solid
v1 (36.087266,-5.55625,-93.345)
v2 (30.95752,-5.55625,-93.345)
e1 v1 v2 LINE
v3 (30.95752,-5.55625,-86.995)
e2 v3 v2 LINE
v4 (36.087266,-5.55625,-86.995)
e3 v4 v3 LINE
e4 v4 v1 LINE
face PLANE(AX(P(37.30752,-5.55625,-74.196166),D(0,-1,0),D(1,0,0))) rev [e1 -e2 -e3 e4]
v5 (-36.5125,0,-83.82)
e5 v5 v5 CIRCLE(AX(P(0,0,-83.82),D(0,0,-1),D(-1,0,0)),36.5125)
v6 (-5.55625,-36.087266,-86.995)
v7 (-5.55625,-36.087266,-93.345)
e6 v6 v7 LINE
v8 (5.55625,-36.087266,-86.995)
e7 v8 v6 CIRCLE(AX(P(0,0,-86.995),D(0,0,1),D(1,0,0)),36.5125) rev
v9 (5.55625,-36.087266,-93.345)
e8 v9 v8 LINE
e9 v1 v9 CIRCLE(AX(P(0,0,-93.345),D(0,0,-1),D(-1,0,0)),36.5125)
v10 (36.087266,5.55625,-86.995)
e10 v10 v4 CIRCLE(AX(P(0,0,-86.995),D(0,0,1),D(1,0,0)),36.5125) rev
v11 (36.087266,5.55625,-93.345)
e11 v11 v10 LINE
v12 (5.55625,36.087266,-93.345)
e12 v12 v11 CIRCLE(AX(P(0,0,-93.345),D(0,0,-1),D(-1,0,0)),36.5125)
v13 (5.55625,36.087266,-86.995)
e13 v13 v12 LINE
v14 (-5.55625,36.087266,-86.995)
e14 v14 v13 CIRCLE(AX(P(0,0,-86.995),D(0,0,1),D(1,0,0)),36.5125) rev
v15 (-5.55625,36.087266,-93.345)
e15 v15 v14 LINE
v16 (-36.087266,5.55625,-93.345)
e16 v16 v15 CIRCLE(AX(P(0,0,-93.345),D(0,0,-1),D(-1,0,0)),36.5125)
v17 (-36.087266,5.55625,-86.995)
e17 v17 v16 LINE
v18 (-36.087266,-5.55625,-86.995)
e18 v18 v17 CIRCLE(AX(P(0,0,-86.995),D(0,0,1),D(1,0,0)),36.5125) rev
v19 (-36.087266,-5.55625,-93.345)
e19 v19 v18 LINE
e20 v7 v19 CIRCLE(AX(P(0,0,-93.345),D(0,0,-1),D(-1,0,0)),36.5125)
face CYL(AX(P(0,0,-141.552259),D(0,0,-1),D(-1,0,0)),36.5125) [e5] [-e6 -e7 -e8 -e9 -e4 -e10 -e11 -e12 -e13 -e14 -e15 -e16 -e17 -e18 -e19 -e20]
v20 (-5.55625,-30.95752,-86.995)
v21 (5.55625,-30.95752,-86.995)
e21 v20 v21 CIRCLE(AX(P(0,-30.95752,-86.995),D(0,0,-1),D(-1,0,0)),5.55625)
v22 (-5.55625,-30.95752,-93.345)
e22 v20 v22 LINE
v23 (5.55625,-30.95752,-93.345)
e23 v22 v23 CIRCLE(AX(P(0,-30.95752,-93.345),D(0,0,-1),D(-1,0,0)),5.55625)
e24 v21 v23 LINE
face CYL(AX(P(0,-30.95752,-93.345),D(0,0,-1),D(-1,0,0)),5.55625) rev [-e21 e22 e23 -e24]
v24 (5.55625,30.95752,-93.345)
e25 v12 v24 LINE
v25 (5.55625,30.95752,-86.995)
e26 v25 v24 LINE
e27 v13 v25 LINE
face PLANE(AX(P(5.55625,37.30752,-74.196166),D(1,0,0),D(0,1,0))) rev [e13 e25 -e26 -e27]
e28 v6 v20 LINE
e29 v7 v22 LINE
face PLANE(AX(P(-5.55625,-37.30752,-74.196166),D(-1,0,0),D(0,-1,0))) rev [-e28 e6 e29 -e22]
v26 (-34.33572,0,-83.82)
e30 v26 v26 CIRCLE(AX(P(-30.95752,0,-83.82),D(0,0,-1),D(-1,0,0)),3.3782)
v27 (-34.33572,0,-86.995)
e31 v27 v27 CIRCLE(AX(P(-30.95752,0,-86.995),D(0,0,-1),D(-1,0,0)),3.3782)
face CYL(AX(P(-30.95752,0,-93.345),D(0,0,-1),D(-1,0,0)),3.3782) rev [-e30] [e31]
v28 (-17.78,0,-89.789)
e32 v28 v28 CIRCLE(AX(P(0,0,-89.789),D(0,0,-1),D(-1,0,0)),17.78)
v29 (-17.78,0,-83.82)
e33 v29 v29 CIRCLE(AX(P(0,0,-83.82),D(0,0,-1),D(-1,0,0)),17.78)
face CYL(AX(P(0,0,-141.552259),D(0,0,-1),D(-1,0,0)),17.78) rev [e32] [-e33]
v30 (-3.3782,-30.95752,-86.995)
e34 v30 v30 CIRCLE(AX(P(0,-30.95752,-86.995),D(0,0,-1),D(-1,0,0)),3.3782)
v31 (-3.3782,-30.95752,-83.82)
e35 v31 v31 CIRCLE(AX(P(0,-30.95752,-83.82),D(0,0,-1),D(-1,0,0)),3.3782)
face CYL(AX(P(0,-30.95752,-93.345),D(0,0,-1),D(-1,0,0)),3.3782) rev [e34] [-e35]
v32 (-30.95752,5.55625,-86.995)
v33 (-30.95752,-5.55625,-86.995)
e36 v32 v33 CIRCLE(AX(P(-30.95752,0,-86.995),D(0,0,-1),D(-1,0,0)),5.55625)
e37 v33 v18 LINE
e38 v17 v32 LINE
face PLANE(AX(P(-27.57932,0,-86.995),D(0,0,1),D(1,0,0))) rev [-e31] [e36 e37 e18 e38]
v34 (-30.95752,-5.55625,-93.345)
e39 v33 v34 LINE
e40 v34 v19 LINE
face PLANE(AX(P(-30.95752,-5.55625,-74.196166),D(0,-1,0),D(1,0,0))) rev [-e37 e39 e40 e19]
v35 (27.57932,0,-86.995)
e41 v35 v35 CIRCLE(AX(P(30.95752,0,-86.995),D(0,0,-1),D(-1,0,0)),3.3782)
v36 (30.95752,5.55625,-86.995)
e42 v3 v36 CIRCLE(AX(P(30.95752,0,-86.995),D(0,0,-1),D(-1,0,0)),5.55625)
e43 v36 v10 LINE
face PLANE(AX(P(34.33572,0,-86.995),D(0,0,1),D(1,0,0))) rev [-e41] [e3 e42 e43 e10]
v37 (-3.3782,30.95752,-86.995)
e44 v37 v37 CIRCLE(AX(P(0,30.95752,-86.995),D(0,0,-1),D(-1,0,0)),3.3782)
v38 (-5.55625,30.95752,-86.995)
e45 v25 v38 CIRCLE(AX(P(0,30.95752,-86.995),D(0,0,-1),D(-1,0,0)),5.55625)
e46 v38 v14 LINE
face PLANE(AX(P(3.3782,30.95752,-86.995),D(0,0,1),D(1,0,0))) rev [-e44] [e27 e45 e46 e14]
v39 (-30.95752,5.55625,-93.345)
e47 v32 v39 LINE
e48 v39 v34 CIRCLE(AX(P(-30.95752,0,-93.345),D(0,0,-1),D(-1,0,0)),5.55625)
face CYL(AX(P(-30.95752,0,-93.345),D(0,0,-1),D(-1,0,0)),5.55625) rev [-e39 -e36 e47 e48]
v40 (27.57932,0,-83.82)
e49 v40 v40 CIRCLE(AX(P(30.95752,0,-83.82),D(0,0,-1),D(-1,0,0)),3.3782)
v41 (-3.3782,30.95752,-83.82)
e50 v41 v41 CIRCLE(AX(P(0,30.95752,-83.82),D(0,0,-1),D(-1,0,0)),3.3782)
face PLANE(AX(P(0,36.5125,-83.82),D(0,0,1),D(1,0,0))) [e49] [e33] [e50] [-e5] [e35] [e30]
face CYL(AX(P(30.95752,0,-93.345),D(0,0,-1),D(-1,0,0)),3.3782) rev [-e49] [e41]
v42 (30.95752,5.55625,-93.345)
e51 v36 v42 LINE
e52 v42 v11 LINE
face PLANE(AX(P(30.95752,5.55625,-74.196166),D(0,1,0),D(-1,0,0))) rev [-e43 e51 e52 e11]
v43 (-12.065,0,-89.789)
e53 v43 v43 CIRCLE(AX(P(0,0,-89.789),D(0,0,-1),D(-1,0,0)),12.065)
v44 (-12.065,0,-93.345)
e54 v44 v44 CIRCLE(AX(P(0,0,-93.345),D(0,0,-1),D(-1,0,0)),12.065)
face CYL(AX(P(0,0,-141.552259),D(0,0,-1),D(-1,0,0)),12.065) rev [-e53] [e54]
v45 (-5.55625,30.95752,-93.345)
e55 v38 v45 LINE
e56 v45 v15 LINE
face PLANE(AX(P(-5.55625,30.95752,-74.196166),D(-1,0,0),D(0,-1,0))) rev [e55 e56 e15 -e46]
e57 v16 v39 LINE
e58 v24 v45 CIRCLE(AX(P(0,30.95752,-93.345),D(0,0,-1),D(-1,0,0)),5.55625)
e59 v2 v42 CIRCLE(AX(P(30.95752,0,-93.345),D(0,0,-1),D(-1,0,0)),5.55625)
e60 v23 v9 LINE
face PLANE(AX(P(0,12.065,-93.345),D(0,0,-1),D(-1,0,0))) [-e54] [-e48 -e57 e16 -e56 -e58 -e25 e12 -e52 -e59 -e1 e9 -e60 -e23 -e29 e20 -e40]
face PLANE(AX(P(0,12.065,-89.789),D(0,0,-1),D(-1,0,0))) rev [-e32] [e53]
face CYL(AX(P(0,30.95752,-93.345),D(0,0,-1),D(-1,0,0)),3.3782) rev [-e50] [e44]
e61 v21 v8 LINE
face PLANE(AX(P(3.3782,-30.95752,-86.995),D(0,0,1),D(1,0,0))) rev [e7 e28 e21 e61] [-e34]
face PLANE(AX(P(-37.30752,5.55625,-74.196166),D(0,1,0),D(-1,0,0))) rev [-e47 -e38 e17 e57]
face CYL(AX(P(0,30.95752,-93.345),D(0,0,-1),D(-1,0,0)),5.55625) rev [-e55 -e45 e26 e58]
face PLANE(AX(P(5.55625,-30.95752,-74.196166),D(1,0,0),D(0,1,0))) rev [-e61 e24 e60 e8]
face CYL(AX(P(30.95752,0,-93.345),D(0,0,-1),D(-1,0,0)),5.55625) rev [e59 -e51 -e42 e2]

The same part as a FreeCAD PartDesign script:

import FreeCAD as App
import Part
import Sketcher
from FreeCAD import Vector
Q = App.Units.Quantity

doc = App.newDocument("Part")
body = doc.addObject("PartDesign::Body", "Body")

# Sketch on YZ plane
sketch1 = doc.addObject("Sketcher::SketchObject", "Sketch")
body.addObject(sketch1)
sketch1.AttachmentSupport = (doc.YZ_Plane, [""])
sketch1.MapMode = "FlatFace"
sketch1.addGeometry(Part.LineSegment(Vector(12.1, -89.8, 0), Vector(12.1, -93.3, 0)), False)
sketch1.addGeometry(Part.LineSegment(Vector(12.1, -93.3, 0), Vector(36.5, -93.3, 0)), False)
sketch1.addGeometry(Part.LineSegment(Vector(36.5, -93.3, 0), Vector(36.5, -83.8, 0)), False)
sketch1.addGeometry(Part.LineSegment(Vector(36.5, -83.8, 0), Vector(17.8, -83.8, 0)), False)
sketch1.addGeometry(Part.LineSegment(Vector(17.8, -83.8, 0), Vector(17.8, -89.8, 0)), False)
sketch1.addGeometry(Part.LineSegment(Vector(17.8, -89.8, 0), Vector(12.1, -89.8, 0)), False)
sketch1.addConstraint(Sketcher.Constraint("Coincident", 0, 2, 1, 1))
sketch1.addConstraint(Sketcher.Constraint("Coincident", 1, 2, 2, 1))
sketch1.addConstraint(Sketcher.Constraint("Coincident", 2, 2, 3, 1))
sketch1.addConstraint(Sketcher.Constraint("Coincident", 3, 2, 4, 1))
sketch1.addConstraint(Sketcher.Constraint("Coincident", 4, 2, 5, 1))
sketch1.addConstraint(Sketcher.Constraint("Coincident", 5, 2, 0, 1))
sketch1.addConstraint(Sketcher.Constraint("Vertical", 0))
sketch1.addConstraint(Sketcher.Constraint("Horizontal", 1))
sketch1.addConstraint(Sketcher.Constraint("Vertical", 2))
sketch1.addConstraint(Sketcher.Constraint("Horizontal", 3))
sketch1.addConstraint(Sketcher.Constraint("Vertical", 4))
sketch1.addConstraint(Sketcher.Constraint("Horizontal", 5))
sketch1.addConstraint(Sketcher.Constraint("DistanceY", 0, 2, 0, 1, Q("0.14 in")))
sketch1.addConstraint(Sketcher.Constraint("DistanceY", 2, 2, -1, 1, Q("3.3 in")))
sketch1.addConstraint(Sketcher.Constraint("DistanceX", -1, 1, 3, 2, Q("0.7 in")))
sketch1.addConstraint(Sketcher.Constraint("DistanceX", 5, 2, 5, 1, Q("0.225 in")))
sketch1.addConstraint(Sketcher.Constraint("DistanceY", 2, 1, 2, 2, Q("0.375 in")))
sketch1.addConstraint(Sketcher.Constraint("DistanceX", 1, 1, 1, 2, Q("0.9625 in")))
revolution = doc.addObject("PartDesign::Revolution", "Revolution")
body.addObject(revolution)
revolution.Profile = sketch1
revolution.ReferenceAxis = (sketch1, ["V_Axis"])
revolution.Angle = 360

# Sketch on XY plane
sketch2 = doc.addObject("Sketcher::SketchObject", "Sketch001")
body.addObject(sketch2)
sketch2.AttachmentSupport = (doc.XY_Plane, [""])
sketch2.MapMode = "FlatFace"
sketch2.AttachmentOffset = App.Placement(Vector(0, 0, -3.675 * 25.4), App.Rotation())
sketch2.addGeometry(Part.Circle(Vector(0, 31, 0), Vector(0, 0, 1), 3.4), False)
sketch2.addGeometry(Part.Circle(Vector(-31, 0, 0), Vector(0, 0, 1), 3.4), False)
sketch2.addGeometry(Part.Circle(Vector(0, -31, 0), Vector(0, 0, 1), 3.4), False)
sketch2.addGeometry(Part.Circle(Vector(31, 0, 0), Vector(0, 0, 1), 3.4), False)
sketch2.addConstraint(Sketcher.Constraint("Equal", 0, 1))
sketch2.addConstraint(Sketcher.Constraint("Equal", 1, 2))
sketch2.addConstraint(Sketcher.Constraint("Equal", 2, 3))
sketch2.addConstraint(Sketcher.Constraint("Symmetric", 0, 3, 2, 3, -1, 1))
sketch2.addConstraint(Sketcher.Constraint("Symmetric", 1, 3, 3, 3, -1, 1))
sketch2.addConstraint(Sketcher.Constraint("PointOnObject", 0, 3, -2))
sketch2.addConstraint(Sketcher.Constraint("PointOnObject", 1, 3, -1))
sketch2.addConstraint(Sketcher.Constraint("Diameter", 0, Q("0.266 in")))
sketch2.addConstraint(Sketcher.Constraint("DistanceY", -1, 1, 0, 3, Q("1.2188 in")))
sketch2.addConstraint(Sketcher.Constraint("DistanceX", 1, 3, -1, 1, Q("1.2188 in")))
doc.recompute()
hole = doc.addObject("PartDesign::Hole", "Hole")
body.addObject(hole)
hole.Profile = sketch2
hole.ThreadType = "None"
hole.Diameter = Q("0.266 in")
hole.DepthType = "ThroughAll"
hole.HoleCutType = "Counterbore"
hole.HoleCutDiameter = Q("0.4375 in")
hole.HoleCutDepth = Q("0.25 in")
hole.Reversed = True

# Sketch on XY plane
sketch3 = doc.addObject("Sketcher::SketchObject", "Sketch002")
body.addObject(sketch3)
sketch3.AttachmentSupport = (doc.XY_Plane, [""])
sketch3.MapMode = "FlatFace"
sketch3.AttachmentOffset = App.Placement(Vector(0, 0, -3.675 * 25.4), App.Rotation())
sketch3.addGeometry(Part.LineSegment(Vector(-6, 31, 0), Vector(-6, 37, 0)), False)
sketch3.addGeometry(Part.LineSegment(Vector(-6, 37, 0), Vector(6, 37, 0)), False)
sketch3.addGeometry(Part.LineSegment(Vector(6, 37, 0), Vector(6, 31, 0)), False)
sketch3.addGeometry(Part.LineSegment(Vector(6, 31, 0), Vector(-6, 31, 0)), False)
sketch3.addGeometry(Part.LineSegment(Vector(-31, 6, 0), Vector(-31, -6, 0)), False)
sketch3.addGeometry(Part.LineSegment(Vector(-31, -6, 0), Vector(-37, -6, 0)), False)
sketch3.addGeometry(Part.LineSegment(Vector(-37, -6, 0), Vector(-37, 6, 0)), False)
sketch3.addGeometry(Part.LineSegment(Vector(-37, 6, 0), Vector(-31, 6, 0)), False)
sketch3.addGeometry(Part.LineSegment(Vector(-6, -31, 0), Vector(6, -31, 0)), False)
sketch3.addGeometry(Part.LineSegment(Vector(6, -31, 0), Vector(6, -37, 0)), False)
sketch3.addGeometry(Part.LineSegment(Vector(6, -37, 0), Vector(-6, -37, 0)), False)
sketch3.addGeometry(Part.LineSegment(Vector(-6, -37, 0), Vector(-6, -31, 0)), False)
sketch3.addGeometry(Part.LineSegment(Vector(31, -6, 0), Vector(31, 6, 0)), False)
sketch3.addGeometry(Part.LineSegment(Vector(31, 6, 0), Vector(37, 6, 0)), False)
sketch3.addGeometry(Part.LineSegment(Vector(37, 6, 0), Vector(37, -6, 0)), False)
sketch3.addGeometry(Part.LineSegment(Vector(37, -6, 0), Vector(31, -6, 0)), False)
sketch3.addConstraint(Sketcher.Constraint("Coincident", 0, 2, 1, 1))
sketch3.addConstraint(Sketcher.Constraint("Coincident", 1, 2, 2, 1))
sketch3.addConstraint(Sketcher.Constraint("Coincident", 2, 2, 3, 1))
sketch3.addConstraint(Sketcher.Constraint("Coincident", 3, 2, 0, 1))
sketch3.addConstraint(Sketcher.Constraint("Coincident", 4, 2, 5, 1))
sketch3.addConstraint(Sketcher.Constraint("Coincident", 5, 2, 6, 1))
sketch3.addConstraint(Sketcher.Constraint("Coincident", 6, 2, 7, 1))
sketch3.addConstraint(Sketcher.Constraint("Coincident", 7, 2, 4, 1))
sketch3.addConstraint(Sketcher.Constraint("Coincident", 8, 2, 9, 1))
sketch3.addConstraint(Sketcher.Constraint("Coincident", 9, 2, 10, 1))
sketch3.addConstraint(Sketcher.Constraint("Coincident", 10, 2, 11, 1))
sketch3.addConstraint(Sketcher.Constraint("Coincident", 11, 2, 8, 1))
sketch3.addConstraint(Sketcher.Constraint("Coincident", 12, 2, 13, 1))
sketch3.addConstraint(Sketcher.Constraint("Coincident", 13, 2, 14, 1))
sketch3.addConstraint(Sketcher.Constraint("Coincident", 14, 2, 15, 1))
sketch3.addConstraint(Sketcher.Constraint("Coincident", 15, 2, 12, 1))
sketch3.addConstraint(Sketcher.Constraint("Vertical", 0))
sketch3.addConstraint(Sketcher.Constraint("Horizontal", 1))
sketch3.addConstraint(Sketcher.Constraint("Vertical", 2))
sketch3.addConstraint(Sketcher.Constraint("Horizontal", 3))
sketch3.addConstraint(Sketcher.Constraint("Vertical", 4))
sketch3.addConstraint(Sketcher.Constraint("Horizontal", 5))
sketch3.addConstraint(Sketcher.Constraint("Vertical", 6))
sketch3.addConstraint(Sketcher.Constraint("Horizontal", 7))
sketch3.addConstraint(Sketcher.Constraint("Horizontal", 8))
sketch3.addConstraint(Sketcher.Constraint("Vertical", 9))
sketch3.addConstraint(Sketcher.Constraint("Horizontal", 10))
sketch3.addConstraint(Sketcher.Constraint("Vertical", 11))
sketch3.addConstraint(Sketcher.Constraint("Vertical", 12))
sketch3.addConstraint(Sketcher.Constraint("Horizontal", 13))
sketch3.addConstraint(Sketcher.Constraint("Vertical", 14))
sketch3.addConstraint(Sketcher.Constraint("Horizontal", 15))
sketch3.addConstraint(Sketcher.Constraint("Symmetric", 3, 2, 8, 2, -1, 1))
sketch3.addConstraint(Sketcher.Constraint("Symmetric", 1, 2, 10, 2, -1, 1))
sketch3.addConstraint(Sketcher.Constraint("Symmetric", 4, 2, 12, 2, -1, 1))
sketch3.addConstraint(Sketcher.Constraint("Symmetric", 6, 2, 14, 2, -1, 1))
sketch3.addConstraint(Sketcher.Constraint("Horizontal", 7, 2, 12, 2))
sketch3.addConstraint(Sketcher.Constraint("Vertical", 2, 2, 8, 2))
sketch3.addConstraint(Sketcher.Constraint("Equal", 15, 0))
sketch3.addConstraint(Sketcher.Constraint("Equal", 10, 4))
sketch3.addConstraint(Sketcher.Constraint("DistanceX", 5, 2, 5, 1, Q("0.25 in")))
sketch3.addConstraint(Sketcher.Constraint("DistanceX", 1, 1, 1, 2, Q("0.4375 in")))
sketch3.addConstraint(Sketcher.Constraint("DistanceY", -1, 1, 0, 2, Q("1.4688 in")))
sketch3.addConstraint(Sketcher.Constraint("DistanceX", 4, 2, -1, 1, Q("1.2188 in")))
pocket1 = doc.addObject("PartDesign::Pocket", "Pocket")
body.addObject(pocket1)
pocket1.Profile = sketch3
pocket1.Length = Q("0.25 in")
pocket1.Reversed = True

doc.recompute()
